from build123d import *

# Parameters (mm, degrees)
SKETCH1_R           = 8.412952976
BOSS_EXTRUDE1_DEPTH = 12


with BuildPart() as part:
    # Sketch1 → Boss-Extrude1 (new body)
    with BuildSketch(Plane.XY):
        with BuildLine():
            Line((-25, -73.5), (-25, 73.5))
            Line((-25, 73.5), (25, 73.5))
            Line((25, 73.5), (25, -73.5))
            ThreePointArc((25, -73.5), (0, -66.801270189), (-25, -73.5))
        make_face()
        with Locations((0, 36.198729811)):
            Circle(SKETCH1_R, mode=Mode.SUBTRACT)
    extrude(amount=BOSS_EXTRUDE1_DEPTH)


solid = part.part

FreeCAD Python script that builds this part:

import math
import FreeCAD as App
import Part
import Sketcher
from FreeCAD import Vector

doc = App.newDocument("Part")
body = doc.addObject("PartDesign::Body", "Body")

# Sketch on XY plane
sketch1 = doc.addObject("Sketcher::SketchObject", "Sketch")
body.addObject(sketch1)
sketch1.AttachmentSupport = (doc.XY_Plane, [""])
sketch1.MapMode = "FlatFace"
sketch1.addGeometry(Part.LineSegment(Vector(-25, 74, 0), Vector(-25, -74, 0)), False)
sketch1.addGeometry(Part.ArcOfCircle(Part.Circle(Vector(0, -117, 0), Vector(0, 0, 1), 50), math.radians(60), math.radians(120)), False)
sketch1.addGeometry(Part.LineSegment(Vector(25, -74, 0), Vector(25, 74, 0)), False)
sketch1.addGeometry(Part.LineSegment(Vector(25, 74, 0), Vector(-25, 74, 0)), False)
sketch1.addGeometry(Part.Circle(Vector(0, 36, 0), Vector(0, 0, 1), 8), False)
sketch1.addConstraint(Sketcher.Constraint("Coincident", 0, 2, 1, 2))
sketch1.addConstraint(Sketcher.Constraint("Coincident", 1, 1, 2, 1))
sketch1.addConstraint(Sketcher.Constraint("Coincident", 2, 2, 3, 1))
sketch1.addConstraint(Sketcher.Constraint("Coincident", 3, 2, 0, 1))
sketch1.addConstraint(Sketcher.Constraint("Vertical", 0))
sketch1.addConstraint(Sketcher.Constraint("Vertical", 2))
sketch1.addConstraint(Sketcher.Constraint("Horizontal", 3))
sketch1.addConstraint(Sketcher.Constraint("Symmetric", 0, 2, 2, 2, -1, 1))
sketch1.addConstraint(Sketcher.Constraint("PointOnObject", 1, 3, -2))
sketch1.addConstraint(Sketcher.Constraint("PointOnObject", 4, 3, -2))
sketch1.addConstraint(Sketcher.Constraint("Radius", 1, 50.0))
sketch1.addConstraint(Sketcher.Constraint("DistanceX", 3, 2, 3, 1, 50.0))
sketch1.addConstraint(Sketcher.Constraint("DistanceY", 0, 2, 0, 1, 147.0))
sketch1.addConstraint(Sketcher.Constraint("DistanceY", 1, 3, 4, 3, 153.0))
sketch1.addConstraint(Sketcher.Constraint("Diameter", 4, 16.825906))
pad1 = doc.addObject("PartDesign::Pad", "Pad")
body.addObject(pad1)
pad1.Profile = sketch1
pad1.Length = 12

doc.recompute()
